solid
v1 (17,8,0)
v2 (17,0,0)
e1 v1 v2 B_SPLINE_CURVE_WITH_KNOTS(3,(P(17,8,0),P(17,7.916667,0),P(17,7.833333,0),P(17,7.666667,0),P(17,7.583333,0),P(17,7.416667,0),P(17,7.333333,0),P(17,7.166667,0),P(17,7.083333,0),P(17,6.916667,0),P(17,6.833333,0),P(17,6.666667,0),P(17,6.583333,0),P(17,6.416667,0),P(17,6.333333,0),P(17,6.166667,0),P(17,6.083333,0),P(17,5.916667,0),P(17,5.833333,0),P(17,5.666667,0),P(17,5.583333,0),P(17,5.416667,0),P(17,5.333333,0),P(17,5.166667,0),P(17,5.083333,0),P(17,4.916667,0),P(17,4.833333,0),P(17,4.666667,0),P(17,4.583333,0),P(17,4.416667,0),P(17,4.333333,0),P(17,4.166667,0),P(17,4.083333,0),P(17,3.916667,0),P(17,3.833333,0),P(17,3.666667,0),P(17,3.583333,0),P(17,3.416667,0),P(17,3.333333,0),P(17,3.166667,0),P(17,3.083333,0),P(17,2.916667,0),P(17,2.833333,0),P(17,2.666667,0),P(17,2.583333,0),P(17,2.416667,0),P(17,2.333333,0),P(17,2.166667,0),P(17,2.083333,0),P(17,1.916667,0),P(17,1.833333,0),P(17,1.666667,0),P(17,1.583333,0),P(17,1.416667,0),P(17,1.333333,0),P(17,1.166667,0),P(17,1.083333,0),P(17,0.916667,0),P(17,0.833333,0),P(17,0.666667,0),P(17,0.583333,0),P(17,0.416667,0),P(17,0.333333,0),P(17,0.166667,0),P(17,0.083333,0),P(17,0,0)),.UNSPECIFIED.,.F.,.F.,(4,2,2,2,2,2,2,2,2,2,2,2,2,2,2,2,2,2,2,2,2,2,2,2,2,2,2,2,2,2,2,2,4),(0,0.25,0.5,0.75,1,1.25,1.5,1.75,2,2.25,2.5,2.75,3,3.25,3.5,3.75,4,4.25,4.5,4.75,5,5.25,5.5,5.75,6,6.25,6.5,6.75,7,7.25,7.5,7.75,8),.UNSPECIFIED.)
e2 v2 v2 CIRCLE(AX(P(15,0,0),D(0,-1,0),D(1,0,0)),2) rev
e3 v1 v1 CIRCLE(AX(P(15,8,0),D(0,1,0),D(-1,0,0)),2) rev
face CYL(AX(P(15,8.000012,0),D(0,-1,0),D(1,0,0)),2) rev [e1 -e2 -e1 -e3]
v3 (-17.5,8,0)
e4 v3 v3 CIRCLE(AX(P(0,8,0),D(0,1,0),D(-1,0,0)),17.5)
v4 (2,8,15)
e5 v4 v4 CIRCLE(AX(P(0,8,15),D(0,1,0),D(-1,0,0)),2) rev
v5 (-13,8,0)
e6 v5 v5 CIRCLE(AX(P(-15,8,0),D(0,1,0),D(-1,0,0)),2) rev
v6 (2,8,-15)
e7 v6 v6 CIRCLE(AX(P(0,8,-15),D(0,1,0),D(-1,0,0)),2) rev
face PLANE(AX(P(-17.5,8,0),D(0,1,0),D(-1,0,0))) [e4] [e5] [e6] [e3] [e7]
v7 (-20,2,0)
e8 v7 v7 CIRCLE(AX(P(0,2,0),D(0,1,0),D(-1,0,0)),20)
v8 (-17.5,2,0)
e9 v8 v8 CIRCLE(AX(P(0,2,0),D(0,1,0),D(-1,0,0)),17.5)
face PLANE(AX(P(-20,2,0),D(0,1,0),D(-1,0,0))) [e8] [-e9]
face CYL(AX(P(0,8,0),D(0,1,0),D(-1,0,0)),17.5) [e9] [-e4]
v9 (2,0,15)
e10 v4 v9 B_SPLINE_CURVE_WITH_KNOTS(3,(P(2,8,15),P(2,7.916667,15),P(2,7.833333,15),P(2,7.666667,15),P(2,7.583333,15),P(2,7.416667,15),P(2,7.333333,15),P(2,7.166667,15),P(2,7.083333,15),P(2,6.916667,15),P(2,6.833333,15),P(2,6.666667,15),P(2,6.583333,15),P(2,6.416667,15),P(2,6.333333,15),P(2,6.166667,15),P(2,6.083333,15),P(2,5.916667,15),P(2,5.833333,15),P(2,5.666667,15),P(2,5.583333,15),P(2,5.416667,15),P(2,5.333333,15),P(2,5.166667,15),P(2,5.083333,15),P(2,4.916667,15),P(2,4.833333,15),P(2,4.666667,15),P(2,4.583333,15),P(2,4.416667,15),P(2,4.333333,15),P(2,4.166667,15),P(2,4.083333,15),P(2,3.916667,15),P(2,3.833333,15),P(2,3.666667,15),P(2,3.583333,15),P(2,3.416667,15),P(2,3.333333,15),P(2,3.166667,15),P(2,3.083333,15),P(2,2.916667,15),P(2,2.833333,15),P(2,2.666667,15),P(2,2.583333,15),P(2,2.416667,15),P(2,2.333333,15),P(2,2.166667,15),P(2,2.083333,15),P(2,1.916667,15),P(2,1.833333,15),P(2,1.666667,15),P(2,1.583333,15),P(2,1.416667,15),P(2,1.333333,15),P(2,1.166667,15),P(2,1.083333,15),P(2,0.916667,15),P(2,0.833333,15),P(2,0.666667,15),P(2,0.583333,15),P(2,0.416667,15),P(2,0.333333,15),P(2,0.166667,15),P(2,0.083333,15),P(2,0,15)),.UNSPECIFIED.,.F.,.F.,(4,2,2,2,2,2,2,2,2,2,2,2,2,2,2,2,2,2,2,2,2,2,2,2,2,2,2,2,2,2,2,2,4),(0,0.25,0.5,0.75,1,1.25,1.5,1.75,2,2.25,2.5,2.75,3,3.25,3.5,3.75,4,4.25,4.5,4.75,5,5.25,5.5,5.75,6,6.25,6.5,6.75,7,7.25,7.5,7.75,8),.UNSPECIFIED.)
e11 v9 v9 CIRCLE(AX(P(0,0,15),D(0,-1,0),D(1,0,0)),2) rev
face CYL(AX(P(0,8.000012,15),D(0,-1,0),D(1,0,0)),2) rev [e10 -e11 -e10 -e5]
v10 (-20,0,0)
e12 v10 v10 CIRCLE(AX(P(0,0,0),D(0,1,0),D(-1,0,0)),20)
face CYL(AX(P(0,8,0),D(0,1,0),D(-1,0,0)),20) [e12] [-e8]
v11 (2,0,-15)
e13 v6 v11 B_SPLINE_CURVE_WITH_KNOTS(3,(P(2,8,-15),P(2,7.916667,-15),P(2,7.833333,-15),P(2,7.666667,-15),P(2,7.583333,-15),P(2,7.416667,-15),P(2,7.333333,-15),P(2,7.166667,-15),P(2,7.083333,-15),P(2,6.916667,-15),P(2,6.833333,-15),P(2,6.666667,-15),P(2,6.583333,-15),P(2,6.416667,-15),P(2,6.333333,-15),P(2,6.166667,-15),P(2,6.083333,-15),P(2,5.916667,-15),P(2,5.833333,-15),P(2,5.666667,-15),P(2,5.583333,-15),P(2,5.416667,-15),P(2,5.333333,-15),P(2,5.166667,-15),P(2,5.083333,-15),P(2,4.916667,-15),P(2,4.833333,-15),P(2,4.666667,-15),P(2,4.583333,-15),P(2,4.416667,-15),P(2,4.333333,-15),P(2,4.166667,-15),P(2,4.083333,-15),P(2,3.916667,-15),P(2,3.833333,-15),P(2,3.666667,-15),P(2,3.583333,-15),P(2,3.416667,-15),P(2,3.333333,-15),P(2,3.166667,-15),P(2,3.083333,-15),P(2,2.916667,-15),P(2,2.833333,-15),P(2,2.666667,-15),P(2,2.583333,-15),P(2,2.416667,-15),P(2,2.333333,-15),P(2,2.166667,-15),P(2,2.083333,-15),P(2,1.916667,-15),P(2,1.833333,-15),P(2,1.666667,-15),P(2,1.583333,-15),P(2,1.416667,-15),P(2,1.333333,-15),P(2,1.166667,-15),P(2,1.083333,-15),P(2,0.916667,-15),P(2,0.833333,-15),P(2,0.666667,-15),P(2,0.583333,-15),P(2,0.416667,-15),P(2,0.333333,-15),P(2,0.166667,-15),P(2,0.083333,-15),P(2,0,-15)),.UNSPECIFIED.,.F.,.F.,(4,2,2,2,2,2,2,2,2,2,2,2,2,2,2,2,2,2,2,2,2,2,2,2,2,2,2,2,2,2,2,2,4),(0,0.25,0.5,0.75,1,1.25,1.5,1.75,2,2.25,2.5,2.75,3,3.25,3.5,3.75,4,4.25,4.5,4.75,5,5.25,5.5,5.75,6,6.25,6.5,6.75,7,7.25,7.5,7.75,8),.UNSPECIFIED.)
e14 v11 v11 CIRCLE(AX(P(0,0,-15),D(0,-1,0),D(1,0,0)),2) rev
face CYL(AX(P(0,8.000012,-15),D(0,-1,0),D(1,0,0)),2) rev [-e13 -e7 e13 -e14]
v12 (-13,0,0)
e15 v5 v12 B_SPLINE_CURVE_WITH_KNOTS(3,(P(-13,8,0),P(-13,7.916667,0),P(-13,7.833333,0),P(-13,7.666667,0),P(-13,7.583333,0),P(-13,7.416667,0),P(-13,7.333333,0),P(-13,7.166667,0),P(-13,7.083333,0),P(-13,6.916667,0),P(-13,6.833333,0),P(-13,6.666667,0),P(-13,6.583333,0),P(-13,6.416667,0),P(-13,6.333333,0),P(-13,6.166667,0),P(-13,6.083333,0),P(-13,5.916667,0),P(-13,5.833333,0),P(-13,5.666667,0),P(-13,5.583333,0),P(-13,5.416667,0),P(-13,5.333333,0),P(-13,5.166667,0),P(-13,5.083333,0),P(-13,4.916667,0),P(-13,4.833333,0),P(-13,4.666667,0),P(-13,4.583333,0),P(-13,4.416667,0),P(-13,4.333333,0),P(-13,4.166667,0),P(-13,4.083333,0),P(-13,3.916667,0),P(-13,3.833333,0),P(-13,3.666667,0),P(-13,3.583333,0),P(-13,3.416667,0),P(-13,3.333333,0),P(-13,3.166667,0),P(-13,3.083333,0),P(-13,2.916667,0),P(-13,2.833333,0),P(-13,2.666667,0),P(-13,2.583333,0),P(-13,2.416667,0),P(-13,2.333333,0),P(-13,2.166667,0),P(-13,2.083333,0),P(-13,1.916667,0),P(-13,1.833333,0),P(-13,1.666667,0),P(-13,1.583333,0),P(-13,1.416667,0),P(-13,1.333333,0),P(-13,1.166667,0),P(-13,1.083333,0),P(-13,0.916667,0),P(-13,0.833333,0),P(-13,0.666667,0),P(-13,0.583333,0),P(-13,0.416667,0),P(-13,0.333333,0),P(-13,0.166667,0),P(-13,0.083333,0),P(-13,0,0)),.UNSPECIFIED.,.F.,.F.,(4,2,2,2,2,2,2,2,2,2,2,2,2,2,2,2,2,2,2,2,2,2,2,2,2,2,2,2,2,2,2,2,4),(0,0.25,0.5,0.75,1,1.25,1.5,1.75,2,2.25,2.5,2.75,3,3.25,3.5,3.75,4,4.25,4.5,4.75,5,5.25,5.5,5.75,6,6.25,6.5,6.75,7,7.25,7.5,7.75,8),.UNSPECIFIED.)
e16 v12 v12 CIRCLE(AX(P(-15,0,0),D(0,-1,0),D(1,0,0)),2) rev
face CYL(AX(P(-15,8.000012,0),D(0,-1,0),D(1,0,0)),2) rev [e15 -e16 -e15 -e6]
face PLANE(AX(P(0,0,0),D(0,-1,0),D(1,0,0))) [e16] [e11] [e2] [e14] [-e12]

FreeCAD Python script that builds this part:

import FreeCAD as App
import Part
import Sketcher

V = App.Vector

doc = App.newDocument("Part")
body = doc.addObject("PartDesign::Body", "Body")

sketch1 = body.newObject("Sketcher::SketchObject", "Sketch")
sketch1.AttachmentSupport = (doc.getObject("XY_Plane"), [""])
sketch1.MapMode = "FlatFace"
sketch1.addGeometry([
    Part.LineSegment(V(-20, 0, 0), V(0, 0, 0)),
    Part.LineSegment(V(0, 0, 0), V(0, 8, 0)),
    Part.LineSegment(V(0, 8, 0), V(-17.5, 8, 0)),
    Part.LineSegment(V(-17.5, 8, 0), V(-17.5, 2, 0)),
    Part.LineSegment(V(-17.5, 2, 0), V(-20, 2, 0)),
    Part.LineSegment(V(-20, 2, 0), V(-20, 0, 0)),
], False)
sketch1.addConstraint([
    Sketcher.Constraint("Coincident", 0, 2, 1, 1),
    Sketcher.Constraint("Coincident", 1, 2, 2, 1),
    Sketcher.Constraint("Coincident", 2, 2, 3, 1),
    Sketcher.Constraint("Coincident", 3, 2, 4, 1),
    Sketcher.Constraint("Coincident", 4, 2, 5, 1),
    Sketcher.Constraint("Coincident", 5, 2, 0, 1),
    Sketcher.Constraint("Horizontal", 0),
    Sketcher.Constraint("Vertical", 1),
    Sketcher.Constraint("Horizontal", 2),
    Sketcher.Constraint("Vertical", 3),
    Sketcher.Constraint("Horizontal", 4),
    Sketcher.Constraint("Vertical", 5),
    Sketcher.Constraint("Coincident", 0, 2, -1, 1),
    Sketcher.Constraint("DistanceX", 0, 1, 0, 2, 20.0),
    Sketcher.Constraint("DistanceY", 1, 1, 1, 2, 8.0),
    Sketcher.Constraint("DistanceY", 3, 2, 3, 1, 6.0),
    Sketcher.Constraint("DistanceX", 2, 2, 2, 1, 17.5),
])
revolution = body.newObject("PartDesign::Revolution", "Revolution")
revolution.Profile = sketch1
revolution.ReferenceAxis = (sketch1, ["V_Axis"])
revolution.Angle = 360

sketch2 = body.newObject("Sketcher::SketchObject", "Sketch001")
sketch2.AttachmentSupport = (doc.getObject("XZ_Plane"), [""])
sketch2.MapMode = "FlatFace"
sketch2.AttachmentOffset = App.Placement(V(0, 0, -8), App.Rotation())
sketch2.addGeometry(Part.Circle(V(0, -15, 0), V(0, 0, 1), 2), False)
sketch2.addConstraint([
    Sketcher.Constraint("PointOnObject", 0, 3, -2),
    Sketcher.Constraint("Diameter", 0, 4.0),
    Sketcher.Constraint("DistanceY", 0, 3, -1, 1, 15.0),
])
pocket1 = body.newObject("PartDesign::Pocket", "Pocket")
pocket1.Profile = sketch2
pocket1.Type = "UpToFirst"
pocket1.Reversed = True

sketch3 = body.newObject("Sketcher::SketchObject", "Sketch002")
sketch3.AttachmentSupport = (doc.getObject("XZ_Plane"), [""])
sketch3.MapMode = "FlatFace"
sketch3.AttachmentOffset = App.Placement(V(0, 0, -8), App.Rotation())
sketch3.addGeometry(Part.Circle(V(15, 0, 0), V(0, 0, 1), 2), False)
sketch3.addConstraint([
    Sketcher.Constraint("PointOnObject", 0, 3, -1),
    Sketcher.Constraint("Diameter", 0, 4.0),
    Sketcher.Constraint("DistanceX", -1, 1, 0, 3, 15.0),
])
pocket2 = body.newObject("PartDesign::Pocket", "Pocket001")
pocket2.Profile = sketch3
pocket2.Type = "UpToFirst"
pocket2.Reversed = True

sketch4 = body.newObject("Sketcher::SketchObject", "Sketch003")
sketch4.AttachmentSupport = (doc.getObject("XZ_Plane"), [""])
sketch4.MapMode = "FlatFace"
sketch4.AttachmentOffset = App.Placement(V(0, 0, -8), App.Rotation())
sketch4.addGeometry(Part.Circle(V(0, 15, 0), V(0, 0, 1), 2), False)
sketch4.addConstraint([
    Sketcher.Constraint("PointOnObject", 0, 3, -2),
    Sketcher.Constraint("Diameter", 0, 4.0),
    Sketcher.Constraint("DistanceY", -1, 1, 0, 3, 15.0),
])
pocket3 = body.newObject("PartDesign::Pocket", "Pocket002")
pocket3.Profile = sketch4
pocket3.Type = "UpToFirst"
pocket3.Reversed = True

sketch5 = body.newObject("Sketcher::SketchObject", "Sketch004")
sketch5.AttachmentSupport = (doc.getObject("XZ_Plane"), [""])
sketch5.MapMode = "FlatFace"
sketch5.AttachmentOffset = App.Placement(V(0, 0, -8), App.Rotation())
sketch5.addGeometry(Part.Circle(V(-15, 0, 0), V(0, 0, 1), 2), False)
sketch5.addConstraint([
    Sketcher.Constraint("PointOnObject", 0, 3, -1),
    Sketcher.Constraint("Diameter", 0, 4.0),
    Sketcher.Constraint("DistanceX", 0, 3, -1, 1, 15.0),
])
pocket4 = body.newObject("PartDesign::Pocket", "Pocket003")
pocket4.Profile = sketch5
pocket4.Type = "UpToFirst"
pocket4.Reversed = True

sketch6 = body.newObject("Sketcher::SketchObject", "Sketch005")
sketch6.AttachmentSupport = (doc.getObject("XZ_Plane"), [""])
sketch6.MapMode = "FlatFace"
sketch6.AttachmentOffset = App.Placement(V(0, 0, -8), App.Rotation())
sketch6.addGeometry([
    Part.Circle(V(0, -15, 0), V(0, 0, 1), 2),
    Part.Circle(V(15, 0, 0), V(0, 0, 1), 2),
    Part.Circle(V(0, 15, 0), V(0, 0, 1), 2),
    Part.Circle(V(-15, 0, 0), V(0, 0, 1), 2),
], False)
sketch6.addConstraint([
    Sketcher.Constraint("Equal", 0, 1),
    Sketcher.Constraint("Equal", 1, 2),
    Sketcher.Constraint("Equal", 2, 3),
    Sketcher.Constraint("Symmetric", 0, 3, 2, 3, -1, 1),
    Sketcher.Constraint("Symmetric", 1, 3, 3, 3, -1, 1),
    Sketcher.Constraint("PointOnObject", 0, 3, -2),
    Sketcher.Constraint("PointOnObject", 1, 3, -1),
    Sketcher.Constraint("Diameter", 0, 4.0),
    Sketcher.Constraint("DistanceY", 0, 3, -1, 1, 15.0),
    Sketcher.Constraint("DistanceX", -1, 1, 1, 3, 15.0),
])
pocket5 = body.newObject("PartDesign::Pocket", "Pocket004")
pocket5.Profile = sketch6
pocket5.Length = 30.393877

doc.recompute()
